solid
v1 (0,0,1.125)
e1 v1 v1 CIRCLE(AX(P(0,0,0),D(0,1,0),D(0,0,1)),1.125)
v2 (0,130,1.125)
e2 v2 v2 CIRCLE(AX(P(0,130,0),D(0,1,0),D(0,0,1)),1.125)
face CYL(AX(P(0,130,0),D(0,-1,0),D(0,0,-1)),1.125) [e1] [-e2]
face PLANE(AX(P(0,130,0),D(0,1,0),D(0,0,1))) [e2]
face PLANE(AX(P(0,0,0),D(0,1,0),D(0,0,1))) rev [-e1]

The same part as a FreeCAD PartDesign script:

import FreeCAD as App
import Part
import Sketcher

V = App.Vector
Q = App.Units.Quantity

doc = App.newDocument("Part")
body = doc.addObject("PartDesign::Body", "Body")

# Sketch on XZ plane
sketch1 = doc.addObject("Sketcher::SketchObject", "Sketch")
body.addObject(sketch1)
sketch1.AttachmentSupport = (doc.XZ_Plane, [""])
sketch1.MapMode = "FlatFace"
sketch1.addGeometry(Part.Circle(V(0, 0, 0), V(0, 0, 1), 1.1), False)
sketch1.addConstraint(Sketcher.Constraint("Coincident", 0, 3, -1, 1))
sketch1.addConstraint(Sketcher.Constraint("Diameter", 0, Q("2.25 mm")))
pad1 = doc.addObject("PartDesign::Pad", "Pad")
body.addObject(pad1)
pad1.Profile = sketch1
pad1.Length = 130
pad1.Reversed = True

doc.recompute()
